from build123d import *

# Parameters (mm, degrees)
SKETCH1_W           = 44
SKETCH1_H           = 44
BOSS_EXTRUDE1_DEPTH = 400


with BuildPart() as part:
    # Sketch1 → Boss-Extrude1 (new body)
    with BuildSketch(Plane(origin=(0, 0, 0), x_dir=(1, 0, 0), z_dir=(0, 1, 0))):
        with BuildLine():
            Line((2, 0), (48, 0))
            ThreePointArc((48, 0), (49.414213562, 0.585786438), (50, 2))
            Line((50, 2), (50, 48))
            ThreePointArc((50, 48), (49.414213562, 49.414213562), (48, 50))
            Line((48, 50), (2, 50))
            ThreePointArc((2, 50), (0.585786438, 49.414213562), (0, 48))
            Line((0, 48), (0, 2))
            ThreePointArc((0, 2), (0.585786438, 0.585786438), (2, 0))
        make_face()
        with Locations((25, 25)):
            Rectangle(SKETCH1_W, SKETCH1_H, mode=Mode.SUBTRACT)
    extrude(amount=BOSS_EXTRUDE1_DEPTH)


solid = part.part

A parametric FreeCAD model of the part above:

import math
import FreeCAD as App
import Part
import Sketcher
from FreeCAD import Vector
Q = App.Units.Quantity


def add_polygon(sketch, points):
    """Adds a closed chain of lines whose ends are joined by coincident constraints."""
    first, n = sketch.GeometryCount, len(points)
    for a, b in zip(points, points[1:] + points[:1]):
        sketch.addGeometry(Part.LineSegment(App.Vector(*a, 0), App.Vector(*b, 0)), False)
    for i in range(n):
        sketch.addConstraint(Sketcher.Constraint("Coincident", first + i, 2, first + (i + 1) % n, 1))

doc = App.newDocument("Part")
body = doc.addObject("PartDesign::Body", "Body")

# Sketch on XZ plane
sketch1 = body.newObject("Sketcher::SketchObject", "Sketch")
sketch1.AttachmentSupport = (doc.getObject("XZ_Plane"), [""])
sketch1.MapMode = "FlatFace"
sketch1.addGeometry(Part.LineSegment(Vector(2, 0, 0), Vector(48, 0, 0)), False)  # 0
sketch1.addGeometry(Part.ArcOfCircle(Part.Circle(Vector(48, -2, 0), Vector(0, 0, 1), 2), math.radians(0), math.radians(90)), False)  # 1
sketch1.addGeometry(Part.LineSegment(Vector(50, -2, 0), Vector(50, -48, 0)), False)  # 2
sketch1.addGeometry(Part.ArcOfCircle(Part.Circle(Vector(48, -48, 0), Vector(0, 0, 1), 2), math.radians(-90), math.radians(0)), False)  # 3
sketch1.addGeometry(Part.LineSegment(Vector(48, -50, 0), Vector(2, -50, 0)), False)  # 4
sketch1.addGeometry(Part.ArcOfCircle(Part.Circle(Vector(2, -48, 0), Vector(0, 0, 1), 2), math.radians(-180), math.radians(-90)), False)  # 5
sketch1.addGeometry(Part.LineSegment(Vector(0, -48, 0), Vector(0, -2, 0)), False)  # 6
sketch1.addGeometry(Part.ArcOfCircle(Part.Circle(Vector(2, -2, 0), Vector(0, 0, 1), 2), math.radians(90), math.radians(180)), False)  # 7
add_polygon(sketch1, [(47, -3), (3, -3), (3, -47), (47, -47)])  # lines 8-11
sketch1.addConstraint([
    Sketcher.Constraint("Tangent", 0, 2, 1, 2),
    Sketcher.Constraint("Tangent", 1, 1, 2, 1),
    Sketcher.Constraint("Tangent", 2, 2, 3, 2),
    Sketcher.Constraint("Tangent", 3, 1, 4, 1),
    Sketcher.Constraint("Tangent", 4, 2, 5, 2),
    Sketcher.Constraint("Tangent", 5, 1, 6, 1),
    Sketcher.Constraint("Tangent", 6, 2, 7, 2),
    Sketcher.Constraint("Tangent", 7, 1, 0, 1),
    Sketcher.Constraint("Horizontal", 0),
    Sketcher.Constraint("Vertical", 2),
    Sketcher.Constraint("Horizontal", 4),
    Sketcher.Constraint("Vertical", 6),
    Sketcher.Constraint("Horizontal", 8),
    Sketcher.Constraint("Vertical", 9),
    Sketcher.Constraint("Horizontal", 10),
    Sketcher.Constraint("Vertical", 11),
    Sketcher.Constraint("Equal", 1, 3),
    Sketcher.Constraint("Equal", 3, 5),
    Sketcher.Constraint("Equal", 5, 7),
    Sketcher.Constraint("PointOnObject", 0, 2, -1),
    Sketcher.Constraint("PointOnObject", 5, 1, -2),
    Sketcher.Constraint("Equal", 4, 2),
    Sketcher.Constraint("Equal", 10, 9),
    Sketcher.Constraint("Radius", 1, Q("2 mm")),
    Sketcher.Constraint("DistanceX", 0, 1, 0, 2, Q("46 mm")),
    Sketcher.Constraint("DistanceX", 8, 2, 8, 1, Q("44 mm")),
    Sketcher.Constraint("DistanceX", -1, 1, 8, 2, Q("3 mm")),
    Sketcher.Constraint("DistanceY", 8, 2, -1, 1, Q("3 mm")),
])
pad1 = body.newObject("PartDesign::Pad", "Pad")
pad1.Profile = sketch1
pad1.Length = 400
pad1.Reversed = True

doc.recompute()
